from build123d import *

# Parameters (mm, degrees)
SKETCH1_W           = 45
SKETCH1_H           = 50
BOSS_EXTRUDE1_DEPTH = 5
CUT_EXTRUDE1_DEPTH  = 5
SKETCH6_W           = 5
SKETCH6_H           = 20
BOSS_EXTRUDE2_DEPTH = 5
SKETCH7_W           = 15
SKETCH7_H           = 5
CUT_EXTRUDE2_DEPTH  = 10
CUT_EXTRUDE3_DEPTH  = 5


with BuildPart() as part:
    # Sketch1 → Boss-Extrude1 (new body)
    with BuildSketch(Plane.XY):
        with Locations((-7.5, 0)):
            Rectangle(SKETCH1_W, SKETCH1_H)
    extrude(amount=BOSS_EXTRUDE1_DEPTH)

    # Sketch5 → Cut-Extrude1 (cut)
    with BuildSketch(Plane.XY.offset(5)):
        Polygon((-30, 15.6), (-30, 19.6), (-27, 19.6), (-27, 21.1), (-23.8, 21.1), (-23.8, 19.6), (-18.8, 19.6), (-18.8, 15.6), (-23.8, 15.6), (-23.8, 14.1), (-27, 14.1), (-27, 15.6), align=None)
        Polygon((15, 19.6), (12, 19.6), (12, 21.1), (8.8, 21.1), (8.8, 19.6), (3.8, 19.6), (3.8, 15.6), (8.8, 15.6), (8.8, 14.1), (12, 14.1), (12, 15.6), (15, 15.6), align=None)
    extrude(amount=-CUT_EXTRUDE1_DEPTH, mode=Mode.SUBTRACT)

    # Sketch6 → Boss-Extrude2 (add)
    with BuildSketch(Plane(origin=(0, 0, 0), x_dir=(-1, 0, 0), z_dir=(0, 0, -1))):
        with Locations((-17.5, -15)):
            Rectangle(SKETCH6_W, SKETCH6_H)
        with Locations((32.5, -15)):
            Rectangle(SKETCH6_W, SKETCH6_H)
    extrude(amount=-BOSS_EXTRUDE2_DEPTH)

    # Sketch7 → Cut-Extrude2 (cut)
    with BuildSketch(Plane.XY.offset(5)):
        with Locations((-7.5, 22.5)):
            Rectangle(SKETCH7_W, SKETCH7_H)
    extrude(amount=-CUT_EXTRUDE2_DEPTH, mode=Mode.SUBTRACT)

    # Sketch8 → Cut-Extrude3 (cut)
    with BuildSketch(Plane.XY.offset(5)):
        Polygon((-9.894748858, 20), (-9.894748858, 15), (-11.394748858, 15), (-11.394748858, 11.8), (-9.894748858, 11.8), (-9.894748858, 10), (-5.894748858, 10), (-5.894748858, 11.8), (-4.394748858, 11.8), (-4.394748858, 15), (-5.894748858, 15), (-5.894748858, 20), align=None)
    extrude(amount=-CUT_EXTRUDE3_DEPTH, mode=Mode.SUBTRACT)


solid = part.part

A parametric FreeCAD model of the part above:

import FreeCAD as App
import Part
import Sketcher


def add_polygon(sketch, points):
    """Adds a closed chain of lines whose ends are joined by coincident constraints."""
    first, n = sketch.GeometryCount, len(points)
    for a, b in zip(points, points[1:] + points[:1]):
        sketch.addGeometry(Part.LineSegment(App.Vector(*a, 0), App.Vector(*b, 0)), False)
    for i in range(n):
        sketch.addConstraint(Sketcher.Constraint("Coincident", first + i, 2, first + (i + 1) % n, 1))

doc = App.newDocument("Part")
body = doc.addObject("PartDesign::Body", "Body")

# Sketch on XY plane
sketch1 = body.newObject("Sketcher::SketchObject", "Sketch")
sketch1.AttachmentSupport = (doc.getObject("XY_Plane"), [""])
sketch1.MapMode = "FlatFace"
add_polygon(sketch1, [(-30, 25), (-30, -25), (15, -25), (15, 25)])  # lines 0-3
sketch1.addConstraint(Sketcher.Constraint("Vertical", 0))
sketch1.addConstraint(Sketcher.Constraint("Horizontal", 1))
sketch1.addConstraint(Sketcher.Constraint("Vertical", 2))
sketch1.addConstraint(Sketcher.Constraint("Horizontal", 3))
sketch1.addConstraint(Sketcher.Constraint("DistanceX", 1, 1, 1, 2, 45.0))
sketch1.addConstraint(Sketcher.Constraint("DistanceY", 0, 2, 0, 1, 50.0))
sketch1.addConstraint(Sketcher.Constraint("DistanceX", 0, 2, -1, 1, 30.0))
sketch1.addConstraint(Sketcher.Constraint("DistanceY", 0, 2, -1, 1, 25.0))
pad1 = body.newObject("PartDesign::Pad", "Pad")
pad1.Profile = sketch1
pad1.Length = 5

# Sketch on XY plane
sketch2 = body.newObject("Sketcher::SketchObject", "Sketch001")
sketch2.AttachmentSupport = (doc.getObject("XY_Plane"), [""])
sketch2.MapMode = "FlatFace"
sketch2.AttachmentOffset = App.Placement(App.Vector(0, 0, 5), App.Rotation())
add_polygon(sketch2, [(-30, 19.6), (-30, 15.6), (-27, 15.6), (-27, 14.1), (-23.8, 14.1), (-23.8, 15.6), (-18.8, 15.6), (-18.8, 19.6), (-23.8, 19.6), (-23.8, 21.1), (-27, 21.1), (-27, 19.6)])  # lines 0-11
add_polygon(sketch2, [(15, 19.6), (12, 19.6), (12, 21.1), (8.8, 21.1), (8.8, 19.6), (3.8, 19.6), (3.8, 15.6), (8.8, 15.6), (8.8, 14.1), (12, 14.1), (12, 15.6), (15, 15.6)])  # lines 12-23
sketch2.addConstraint(Sketcher.Constraint("Vertical", 0))
sketch2.addConstraint(Sketcher.Constraint("Horizontal", 1))
sketch2.addConstraint(Sketcher.Constraint("Vertical", 2))
sketch2.addConstraint(Sketcher.Constraint("Horizontal", 3))
sketch2.addConstraint(Sketcher.Constraint("Vertical", 4))
sketch2.addConstraint(Sketcher.Constraint("Horizontal", 5))
sketch2.addConstraint(Sketcher.Constraint("Vertical", 6))
sketch2.addConstraint(Sketcher.Constraint("Horizontal", 7))
sketch2.addConstraint(Sketcher.Constraint("Vertical", 8))
sketch2.addConstraint(Sketcher.Constraint("Horizontal", 9))
sketch2.addConstraint(Sketcher.Constraint("Vertical", 10))
sketch2.addConstraint(Sketcher.Constraint("Horizontal", 11))
sketch2.addConstraint(Sketcher.Constraint("Horizontal", 12))
sketch2.addConstraint(Sketcher.Constraint("Vertical", 13))
sketch2.addConstraint(Sketcher.Constraint("Horizontal", 14))
sketch2.addConstraint(Sketcher.Constraint("Vertical", 15))
sketch2.addConstraint(Sketcher.Constraint("Horizontal", 16))
sketch2.addConstraint(Sketcher.Constraint("Vertical", 17))
sketch2.addConstraint(Sketcher.Constraint("Horizontal", 18))
sketch2.addConstraint(Sketcher.Constraint("Vertical", 19))
sketch2.addConstraint(Sketcher.Constraint("Horizontal", 20))
sketch2.addConstraint(Sketcher.Constraint("Vertical", 21))
sketch2.addConstraint(Sketcher.Constraint("Horizontal", 22))
sketch2.addConstraint(Sketcher.Constraint("Vertical", 23))
sketch2.addConstraint(Sketcher.Constraint("Horizontal", 1, 2, 4, 2))
sketch2.addConstraint(Sketcher.Constraint("Horizontal", 7, 2, 10, 2))
sketch2.addConstraint(Sketcher.Constraint("Horizontal", 11, 2, 12, 2))
sketch2.addConstraint(Sketcher.Constraint("Horizontal", 9, 2, 13, 2))
sketch2.addConstraint(Sketcher.Constraint("Horizontal", 12, 2, 15, 2))
sketch2.addConstraint(Sketcher.Constraint("Horizontal", 5, 2, 17, 2))
sketch2.addConstraint(Sketcher.Constraint("Horizontal", 3, 2, 19, 2))
sketch2.addConstraint(Sketcher.Constraint("Horizontal", 18, 2, 21, 2))
sketch2.addConstraint(Sketcher.Constraint("Vertical", 4, 2, 7, 2))
sketch2.addConstraint(Sketcher.Constraint("Vertical", 2, 2, 9, 2))
sketch2.addConstraint(Sketcher.Constraint("Vertical", 15, 2, 18, 2))
sketch2.addConstraint(Sketcher.Constraint("Vertical", 13, 2, 20, 2))
sketch2.addConstraint(Sketcher.Constraint("Equal", 11, 12))
sketch2.addConstraint(Sketcher.Constraint("Equal", 9, 14))
sketch2.addConstraint(Sketcher.Constraint("Equal", 7, 16))
sketch2.addConstraint(Sketcher.Constraint("Equal", 4, 8))
sketch2.addConstraint(Sketcher.Constraint("DistanceX", 1, 1, 1, 2, 3.0))
sketch2.addConstraint(Sketcher.Constraint("DistanceX", 5, 1, 5, 2, 5.0))
sketch2.addConstraint(Sketcher.Constraint("DistanceY", 0, 2, 0, 1, 4.0))
sketch2.addConstraint(Sketcher.Constraint("DistanceX", 3, 1, 3, 2, 3.2))
sketch2.addConstraint(Sketcher.Constraint("DistanceY", 2, 2, 2, 1, 1.5))
sketch2.addConstraint(Sketcher.Constraint("DistanceX", 0, 2, -1, 1, 30.0))
sketch2.addConstraint(Sketcher.Constraint("DistanceX", -1, 1, 12, 2, 12.0))
sketch2.addConstraint(Sketcher.Constraint("DistanceY", -1, 1, 0, 2, 15.6))
pocket1 = body.newObject("PartDesign::Pocket", "Pocket")
pocket1.Profile = sketch2
pocket1.Length = 5

# Sketch on XY plane
sketch3 = body.newObject("Sketcher::SketchObject", "Sketch002")
sketch3.AttachmentSupport = (doc.getObject("XY_Plane"), [""])
sketch3.MapMode = "FlatFace"
add_polygon(sketch3, [(20, -5), (20, -25), (15, -25), (15, -5)])  # lines 0-3
add_polygon(sketch3, [(-30, -5), (-30, -25), (-35, -25), (-35, -5)])  # lines 4-7
sketch3.addConstraint(Sketcher.Constraint("Vertical", 0))
sketch3.addConstraint(Sketcher.Constraint("Horizontal", 1))
sketch3.addConstraint(Sketcher.Constraint("Vertical", 2))
sketch3.addConstraint(Sketcher.Constraint("Horizontal", 3))
sketch3.addConstraint(Sketcher.Constraint("Vertical", 4))
sketch3.addConstraint(Sketcher.Constraint("Horizontal", 5))
sketch3.addConstraint(Sketcher.Constraint("Vertical", 6))
sketch3.addConstraint(Sketcher.Constraint("Horizontal", 7))
sketch3.addConstraint(Sketcher.Constraint("Horizontal", 1, 2, 4, 2))
sketch3.addConstraint(Sketcher.Constraint("Horizontal", 3, 2, 6, 2))
sketch3.addConstraint(Sketcher.Constraint("Equal", 3, 5))
sketch3.addConstraint(Sketcher.Constraint("DistanceX", 1, 2, 1, 1, 5.0))
sketch3.addConstraint(Sketcher.Constraint("DistanceY", 0, 2, 0, 1, 20.0))
sketch3.addConstraint(Sketcher.Constraint("DistanceX", -1, 1, 0, 2, 20.0))
sketch3.addConstraint(Sketcher.Constraint("DistanceY", 0, 2, -1, 1, 25.0))
sketch3.addConstraint(Sketcher.Constraint("DistanceX", 4, 2, -1, 1, 30.0))
pad2 = body.newObject("PartDesign::Pad", "Pad001")
pad2.Profile = sketch3
pad2.Length = 5

# Sketch on XY plane
sketch4 = body.newObject("Sketcher::SketchObject", "Sketch003")
sketch4.AttachmentSupport = (doc.getObject("XY_Plane"), [""])
sketch4.MapMode = "FlatFace"
sketch4.AttachmentOffset = App.Placement(App.Vector(0, 0, 5), App.Rotation())
add_polygon(sketch4, [(-15, 25), (-15, 20), (0, 20), (0, 25)])  # lines 0-3
sketch4.addConstraint(Sketcher.Constraint("Vertical", 0))
sketch4.addConstraint(Sketcher.Constraint("Horizontal", 1))
sketch4.addConstraint(Sketcher.Constraint("Vertical", 2))
sketch4.addConstraint(Sketcher.Constraint("Horizontal", 3))
sketch4.addConstraint(Sketcher.Constraint("PointOnObject", 1, 2, -2))
sketch4.addConstraint(Sketcher.Constraint("DistanceX", 1, 1, 1, 2, 15.0))
sketch4.addConstraint(Sketcher.Constraint("DistanceY", 0, 2, 0, 1, 5.0))
sketch4.addConstraint(Sketcher.Constraint("DistanceY", -1, 1, 0, 2, 20.0))
pocket2 = body.newObject("PartDesign::Pocket", "Pocket001")
pocket2.Profile = sketch4
pocket2.Length = 10

# Sketch on XY plane
sketch5 = body.newObject("Sketcher::SketchObject", "Sketch004")
sketch5.AttachmentSupport = (doc.getObject("XY_Plane"), [""])
sketch5.MapMode = "FlatFace"
sketch5.AttachmentOffset = App.Placement(App.Vector(0, 0, 5), App.Rotation())
add_polygon(sketch5, [(-9.9, 20), (-9.9, 15), (-11.4, 15), (-11.4, 11.8), (-9.9, 11.8), (-9.9, 10), (-5.9, 10), (-5.9, 11.8), (-4.4, 11.8), (-4.4, 15), (-5.9, 15), (-5.9, 20)])  # lines 0-11
sketch5.addConstraint(Sketcher.Constraint("Vertical", 0))
sketch5.addConstraint(Sketcher.Constraint("Horizontal", 1))
sketch5.addConstraint(Sketcher.Constraint("Vertical", 2))
sketch5.addConstraint(Sketcher.Constraint("Horizontal", 3))
sketch5.addConstraint(Sketcher.Constraint("Vertical", 4))
sketch5.addConstraint(Sketcher.Constraint("Horizontal", 5))
sketch5.addConstraint(Sketcher.Constraint("Vertical", 6))
sketch5.addConstraint(Sketcher.Constraint("Horizontal", 7))
sketch5.addConstraint(Sketcher.Constraint("Vertical", 8))
sketch5.addConstraint(Sketcher.Constraint("Horizontal", 9))
sketch5.addConstraint(Sketcher.Constraint("Vertical", 10))
sketch5.addConstraint(Sketcher.Constraint("Horizontal", 11))
sketch5.addConstraint(Sketcher.Constraint("Horizontal", 3, 2, 6, 2))
sketch5.addConstraint(Sketcher.Constraint("Horizontal", 1, 2, 8, 2))
sketch5.addConstraint(Sketcher.Constraint("Vertical", 0, 2, 3, 2))
sketch5.addConstraint(Sketcher.Constraint("Vertical", 6, 2, 9, 2))
sketch5.addConstraint(Sketcher.Constraint("Equal", 3, 7))
sketch5.addConstraint(Sketcher.Constraint("DistanceX", 5, 1, 5, 2, 4.0))
sketch5.addConstraint(Sketcher.Constraint("DistanceY", 0, 2, 0, 1, 5.0))
sketch5.addConstraint(Sketcher.Constraint("DistanceX", 1, 2, 1, 1, 1.5))
sketch5.addConstraint(Sketcher.Constraint("DistanceY", 2, 2, 2, 1, 3.2))
sketch5.addConstraint(Sketcher.Constraint("DistanceY", 4, 2, 4, 1, 1.8))
sketch5.addConstraint(Sketcher.Constraint("DistanceY", -1, 1, 0, 2, 15.0))
sketch5.addConstraint(Sketcher.Constraint("DistanceX", 0, 2, -1, 1, 9.894749))
pocket3 = body.newObject("PartDesign::Pocket", "Pocket002")
pocket3.Profile = sketch5
pocket3.Length = 5

doc.recompute()
